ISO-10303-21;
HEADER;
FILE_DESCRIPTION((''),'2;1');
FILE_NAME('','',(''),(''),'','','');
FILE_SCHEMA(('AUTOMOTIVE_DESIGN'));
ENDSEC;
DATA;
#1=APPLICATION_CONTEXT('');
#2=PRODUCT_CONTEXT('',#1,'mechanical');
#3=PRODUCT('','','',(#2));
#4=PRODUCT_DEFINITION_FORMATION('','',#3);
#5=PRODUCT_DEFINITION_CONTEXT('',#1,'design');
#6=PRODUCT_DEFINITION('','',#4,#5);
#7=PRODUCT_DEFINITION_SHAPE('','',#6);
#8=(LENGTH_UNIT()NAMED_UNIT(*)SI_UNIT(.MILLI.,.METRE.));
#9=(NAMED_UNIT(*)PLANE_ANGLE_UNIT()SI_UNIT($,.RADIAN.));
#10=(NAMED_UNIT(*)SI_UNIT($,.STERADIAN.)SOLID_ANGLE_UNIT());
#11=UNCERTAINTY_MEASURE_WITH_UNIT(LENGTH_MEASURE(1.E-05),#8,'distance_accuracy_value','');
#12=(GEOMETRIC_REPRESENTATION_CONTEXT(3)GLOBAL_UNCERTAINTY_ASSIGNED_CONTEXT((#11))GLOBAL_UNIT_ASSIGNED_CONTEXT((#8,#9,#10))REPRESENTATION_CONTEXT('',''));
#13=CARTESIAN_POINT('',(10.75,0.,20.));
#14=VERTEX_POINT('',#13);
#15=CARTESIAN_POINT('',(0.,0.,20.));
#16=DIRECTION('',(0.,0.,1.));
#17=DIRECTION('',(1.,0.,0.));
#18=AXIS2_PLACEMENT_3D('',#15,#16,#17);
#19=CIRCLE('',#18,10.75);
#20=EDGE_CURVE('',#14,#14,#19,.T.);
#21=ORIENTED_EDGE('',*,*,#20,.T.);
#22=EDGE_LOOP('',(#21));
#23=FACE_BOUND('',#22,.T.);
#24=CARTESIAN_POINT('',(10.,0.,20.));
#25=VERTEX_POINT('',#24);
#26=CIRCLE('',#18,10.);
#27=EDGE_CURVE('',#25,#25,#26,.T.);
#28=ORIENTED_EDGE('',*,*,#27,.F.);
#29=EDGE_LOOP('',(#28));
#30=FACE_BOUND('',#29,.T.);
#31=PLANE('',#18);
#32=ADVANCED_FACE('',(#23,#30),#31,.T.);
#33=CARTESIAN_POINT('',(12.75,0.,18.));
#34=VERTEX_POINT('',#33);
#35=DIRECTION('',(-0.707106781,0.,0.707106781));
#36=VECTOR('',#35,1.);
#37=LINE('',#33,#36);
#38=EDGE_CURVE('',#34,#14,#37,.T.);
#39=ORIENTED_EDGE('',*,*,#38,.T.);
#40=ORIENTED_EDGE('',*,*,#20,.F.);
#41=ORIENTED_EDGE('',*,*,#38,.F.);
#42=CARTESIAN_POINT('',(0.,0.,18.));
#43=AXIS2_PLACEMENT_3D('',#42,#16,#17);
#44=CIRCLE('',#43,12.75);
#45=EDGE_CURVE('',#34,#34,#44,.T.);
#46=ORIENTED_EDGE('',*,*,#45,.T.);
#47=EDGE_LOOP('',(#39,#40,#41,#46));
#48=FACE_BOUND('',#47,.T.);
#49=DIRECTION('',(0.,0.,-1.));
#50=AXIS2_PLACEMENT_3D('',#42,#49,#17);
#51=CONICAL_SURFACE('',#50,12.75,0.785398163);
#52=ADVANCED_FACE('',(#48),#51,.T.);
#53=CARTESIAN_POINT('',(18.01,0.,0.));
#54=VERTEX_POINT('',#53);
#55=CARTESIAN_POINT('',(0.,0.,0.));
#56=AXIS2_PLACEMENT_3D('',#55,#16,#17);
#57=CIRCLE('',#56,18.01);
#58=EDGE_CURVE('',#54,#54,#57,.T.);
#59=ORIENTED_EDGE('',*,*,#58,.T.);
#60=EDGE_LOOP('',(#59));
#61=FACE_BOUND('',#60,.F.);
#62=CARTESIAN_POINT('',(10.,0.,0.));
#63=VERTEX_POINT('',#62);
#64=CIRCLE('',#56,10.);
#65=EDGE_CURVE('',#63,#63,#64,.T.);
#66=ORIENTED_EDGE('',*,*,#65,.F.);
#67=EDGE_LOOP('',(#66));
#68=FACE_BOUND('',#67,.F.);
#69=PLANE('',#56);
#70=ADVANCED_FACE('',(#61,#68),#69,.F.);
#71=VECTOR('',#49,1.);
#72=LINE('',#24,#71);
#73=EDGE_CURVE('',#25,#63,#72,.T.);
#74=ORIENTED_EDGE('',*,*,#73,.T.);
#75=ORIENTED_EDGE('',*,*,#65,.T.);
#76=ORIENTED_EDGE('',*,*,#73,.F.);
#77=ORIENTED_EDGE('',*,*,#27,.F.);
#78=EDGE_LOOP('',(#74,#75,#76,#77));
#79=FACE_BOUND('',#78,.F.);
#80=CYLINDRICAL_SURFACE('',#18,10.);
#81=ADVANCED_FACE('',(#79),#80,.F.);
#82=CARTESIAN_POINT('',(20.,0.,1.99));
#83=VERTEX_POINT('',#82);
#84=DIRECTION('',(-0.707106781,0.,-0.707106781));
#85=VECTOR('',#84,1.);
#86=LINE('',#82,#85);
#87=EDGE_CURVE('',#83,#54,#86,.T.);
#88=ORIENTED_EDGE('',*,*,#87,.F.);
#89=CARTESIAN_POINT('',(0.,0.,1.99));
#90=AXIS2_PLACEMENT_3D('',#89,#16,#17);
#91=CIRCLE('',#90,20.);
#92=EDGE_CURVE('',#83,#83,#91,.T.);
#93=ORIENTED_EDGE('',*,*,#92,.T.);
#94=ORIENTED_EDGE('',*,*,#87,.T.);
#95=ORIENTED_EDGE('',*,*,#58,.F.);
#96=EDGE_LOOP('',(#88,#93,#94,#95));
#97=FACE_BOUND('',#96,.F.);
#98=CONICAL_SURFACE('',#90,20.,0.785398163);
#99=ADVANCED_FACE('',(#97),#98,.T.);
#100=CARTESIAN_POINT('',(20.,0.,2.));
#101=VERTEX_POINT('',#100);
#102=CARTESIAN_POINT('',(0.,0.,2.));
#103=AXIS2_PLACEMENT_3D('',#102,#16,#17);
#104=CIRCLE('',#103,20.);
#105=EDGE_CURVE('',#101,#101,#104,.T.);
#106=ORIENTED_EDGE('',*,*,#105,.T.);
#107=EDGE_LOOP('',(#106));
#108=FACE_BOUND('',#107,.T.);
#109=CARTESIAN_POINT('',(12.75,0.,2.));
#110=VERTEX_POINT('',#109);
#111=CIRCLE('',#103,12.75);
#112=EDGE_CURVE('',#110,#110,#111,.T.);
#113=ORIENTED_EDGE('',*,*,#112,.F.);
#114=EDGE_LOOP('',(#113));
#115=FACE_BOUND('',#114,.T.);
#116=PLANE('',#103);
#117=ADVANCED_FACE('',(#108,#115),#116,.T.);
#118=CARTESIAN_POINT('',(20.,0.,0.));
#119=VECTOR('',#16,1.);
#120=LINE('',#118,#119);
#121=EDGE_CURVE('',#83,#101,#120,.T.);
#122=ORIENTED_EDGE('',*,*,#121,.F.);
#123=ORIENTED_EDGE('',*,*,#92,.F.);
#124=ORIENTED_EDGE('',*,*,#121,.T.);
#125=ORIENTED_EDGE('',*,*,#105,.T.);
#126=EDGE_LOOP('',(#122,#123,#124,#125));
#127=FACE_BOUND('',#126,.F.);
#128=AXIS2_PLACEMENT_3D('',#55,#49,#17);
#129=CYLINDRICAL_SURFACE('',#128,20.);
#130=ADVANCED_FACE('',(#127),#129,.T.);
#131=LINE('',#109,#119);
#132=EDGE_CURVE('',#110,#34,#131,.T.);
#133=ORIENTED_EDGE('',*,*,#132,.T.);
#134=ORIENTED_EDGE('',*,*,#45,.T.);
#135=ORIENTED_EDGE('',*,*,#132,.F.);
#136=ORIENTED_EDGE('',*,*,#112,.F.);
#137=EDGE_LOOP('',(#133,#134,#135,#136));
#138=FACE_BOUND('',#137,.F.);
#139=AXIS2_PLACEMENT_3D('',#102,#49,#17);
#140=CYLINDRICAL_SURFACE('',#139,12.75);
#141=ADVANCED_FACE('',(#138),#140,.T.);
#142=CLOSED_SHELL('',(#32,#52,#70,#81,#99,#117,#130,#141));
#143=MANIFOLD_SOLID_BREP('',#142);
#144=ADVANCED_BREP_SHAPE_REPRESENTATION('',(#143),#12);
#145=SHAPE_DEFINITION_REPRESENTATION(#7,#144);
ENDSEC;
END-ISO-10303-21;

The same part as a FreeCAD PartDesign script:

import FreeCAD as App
import Part
import Sketcher

V = App.Vector


def edges_at(feature, points):
    """Names of the edges that pass closest to the given points."""
    edges = feature.Shape.Edges
    near = lambda p: min(range(len(edges)), key=lambda i: edges[i].distToShape(Part.Vertex(*p))[0])
    return sorted({f"Edge{near(p) + 1}" for p in points})

doc = App.newDocument("Part")
params = doc.addObject("Spreadsheet::Sheet", "Params")
for row, (alias, value) in enumerate([
    ("sketch1_diameter", "40 mm"),
    ("pad1_length", "2 mm"),
    ("sketch2_diameter", "25.5 mm"),
    ("pad2_length", "18 mm"),
    ("sketch3_diameter", "20 mm"),
    ("chamfer_size", "2 mm"),
    ("chamfer2_size", "1.99 mm"),
], start=1):
    params.set(f"A{row}", alias)
    params.set(f"B{row}", "=" + value)
    params.setAlias(f"B{row}", alias)

body = doc.addObject("PartDesign::Body", "Body")

# Sketch on XY plane
sketch1 = body.newObject("Sketcher::SketchObject", "Sketch")
sketch1.AttachmentSupport = (doc.getObject("XY_Plane"), [""])
sketch1.MapMode = "FlatFace"
sketch1.addGeometry(Part.Circle(V(0, 0, 0), V(0, 0, 1), 20), False)
sketch1.addConstraint([
    Sketcher.Constraint("Coincident", 0, 3, -1, 1),
    Sketcher.Constraint("Diameter", 0, 40.0),
])
sketch1.setExpression("Constraints[1]", "Params.sketch1_diameter")
pad1 = body.newObject("PartDesign::Pad", "Pad")
pad1.Profile = sketch1
pad1.setExpression("Length", "Params.pad1_length")

# Sketch on XY plane
sketch2 = body.newObject("Sketcher::SketchObject", "Sketch001")
sketch2.AttachmentSupport = (doc.getObject("XY_Plane"), [""])
sketch2.MapMode = "FlatFace"
sketch2.AttachmentOffset = App.Placement(V(0, 0, 2), App.Rotation())
sketch2.addGeometry(Part.Circle(V(0, 0, 0), V(0, 0, 1), 13), False)
sketch2.addConstraint([
    Sketcher.Constraint("Coincident", 0, 3, -1, 1),
    Sketcher.Constraint("Diameter", 0, 25.5),
])
sketch2.setExpression("Constraints[1]", "Params.sketch2_diameter")
pad2 = body.newObject("PartDesign::Pad", "Pad001")
pad2.Profile = sketch2
pad2.setExpression("Length", "Params.pad2_length")

# Sketch on XY plane
sketch3 = body.newObject("Sketcher::SketchObject", "Sketch002")
sketch3.AttachmentSupport = (doc.getObject("XY_Plane"), [""])
sketch3.MapMode = "FlatFace"
sketch3.AttachmentOffset = App.Placement(V(0, 0, 20), App.Rotation())
sketch3.addGeometry(Part.Circle(V(0, 0, 0), V(0, 0, 1), 10), False)
sketch3.addConstraint([
    Sketcher.Constraint("Coincident", 0, 3, -1, 1),
    Sketcher.Constraint("Diameter", 0, 20.0),
])
sketch3.setExpression("Constraints[1]", "Params.sketch3_diameter")
pocket1 = body.newObject("PartDesign::Pocket", "Pocket")
pocket1.Profile = sketch3
pocket1.Type = "ThroughAll"
doc.recompute()

chamfer = body.newObject("PartDesign::Chamfer", "Chamfer")
chamfer.Base = (pocket1, edges_at(pocket1, [(-12.75, 0, 20)]))
chamfer.setExpression("Size", "Params.chamfer_size")
doc.recompute()

chamfer2 = body.newObject("PartDesign::Chamfer", "Chamfer001")
chamfer2.Base = (chamfer, edges_at(chamfer, [(-20, 0, 0)]))
chamfer2.setExpression("Size", "Params.chamfer2_size")

doc.recompute()
